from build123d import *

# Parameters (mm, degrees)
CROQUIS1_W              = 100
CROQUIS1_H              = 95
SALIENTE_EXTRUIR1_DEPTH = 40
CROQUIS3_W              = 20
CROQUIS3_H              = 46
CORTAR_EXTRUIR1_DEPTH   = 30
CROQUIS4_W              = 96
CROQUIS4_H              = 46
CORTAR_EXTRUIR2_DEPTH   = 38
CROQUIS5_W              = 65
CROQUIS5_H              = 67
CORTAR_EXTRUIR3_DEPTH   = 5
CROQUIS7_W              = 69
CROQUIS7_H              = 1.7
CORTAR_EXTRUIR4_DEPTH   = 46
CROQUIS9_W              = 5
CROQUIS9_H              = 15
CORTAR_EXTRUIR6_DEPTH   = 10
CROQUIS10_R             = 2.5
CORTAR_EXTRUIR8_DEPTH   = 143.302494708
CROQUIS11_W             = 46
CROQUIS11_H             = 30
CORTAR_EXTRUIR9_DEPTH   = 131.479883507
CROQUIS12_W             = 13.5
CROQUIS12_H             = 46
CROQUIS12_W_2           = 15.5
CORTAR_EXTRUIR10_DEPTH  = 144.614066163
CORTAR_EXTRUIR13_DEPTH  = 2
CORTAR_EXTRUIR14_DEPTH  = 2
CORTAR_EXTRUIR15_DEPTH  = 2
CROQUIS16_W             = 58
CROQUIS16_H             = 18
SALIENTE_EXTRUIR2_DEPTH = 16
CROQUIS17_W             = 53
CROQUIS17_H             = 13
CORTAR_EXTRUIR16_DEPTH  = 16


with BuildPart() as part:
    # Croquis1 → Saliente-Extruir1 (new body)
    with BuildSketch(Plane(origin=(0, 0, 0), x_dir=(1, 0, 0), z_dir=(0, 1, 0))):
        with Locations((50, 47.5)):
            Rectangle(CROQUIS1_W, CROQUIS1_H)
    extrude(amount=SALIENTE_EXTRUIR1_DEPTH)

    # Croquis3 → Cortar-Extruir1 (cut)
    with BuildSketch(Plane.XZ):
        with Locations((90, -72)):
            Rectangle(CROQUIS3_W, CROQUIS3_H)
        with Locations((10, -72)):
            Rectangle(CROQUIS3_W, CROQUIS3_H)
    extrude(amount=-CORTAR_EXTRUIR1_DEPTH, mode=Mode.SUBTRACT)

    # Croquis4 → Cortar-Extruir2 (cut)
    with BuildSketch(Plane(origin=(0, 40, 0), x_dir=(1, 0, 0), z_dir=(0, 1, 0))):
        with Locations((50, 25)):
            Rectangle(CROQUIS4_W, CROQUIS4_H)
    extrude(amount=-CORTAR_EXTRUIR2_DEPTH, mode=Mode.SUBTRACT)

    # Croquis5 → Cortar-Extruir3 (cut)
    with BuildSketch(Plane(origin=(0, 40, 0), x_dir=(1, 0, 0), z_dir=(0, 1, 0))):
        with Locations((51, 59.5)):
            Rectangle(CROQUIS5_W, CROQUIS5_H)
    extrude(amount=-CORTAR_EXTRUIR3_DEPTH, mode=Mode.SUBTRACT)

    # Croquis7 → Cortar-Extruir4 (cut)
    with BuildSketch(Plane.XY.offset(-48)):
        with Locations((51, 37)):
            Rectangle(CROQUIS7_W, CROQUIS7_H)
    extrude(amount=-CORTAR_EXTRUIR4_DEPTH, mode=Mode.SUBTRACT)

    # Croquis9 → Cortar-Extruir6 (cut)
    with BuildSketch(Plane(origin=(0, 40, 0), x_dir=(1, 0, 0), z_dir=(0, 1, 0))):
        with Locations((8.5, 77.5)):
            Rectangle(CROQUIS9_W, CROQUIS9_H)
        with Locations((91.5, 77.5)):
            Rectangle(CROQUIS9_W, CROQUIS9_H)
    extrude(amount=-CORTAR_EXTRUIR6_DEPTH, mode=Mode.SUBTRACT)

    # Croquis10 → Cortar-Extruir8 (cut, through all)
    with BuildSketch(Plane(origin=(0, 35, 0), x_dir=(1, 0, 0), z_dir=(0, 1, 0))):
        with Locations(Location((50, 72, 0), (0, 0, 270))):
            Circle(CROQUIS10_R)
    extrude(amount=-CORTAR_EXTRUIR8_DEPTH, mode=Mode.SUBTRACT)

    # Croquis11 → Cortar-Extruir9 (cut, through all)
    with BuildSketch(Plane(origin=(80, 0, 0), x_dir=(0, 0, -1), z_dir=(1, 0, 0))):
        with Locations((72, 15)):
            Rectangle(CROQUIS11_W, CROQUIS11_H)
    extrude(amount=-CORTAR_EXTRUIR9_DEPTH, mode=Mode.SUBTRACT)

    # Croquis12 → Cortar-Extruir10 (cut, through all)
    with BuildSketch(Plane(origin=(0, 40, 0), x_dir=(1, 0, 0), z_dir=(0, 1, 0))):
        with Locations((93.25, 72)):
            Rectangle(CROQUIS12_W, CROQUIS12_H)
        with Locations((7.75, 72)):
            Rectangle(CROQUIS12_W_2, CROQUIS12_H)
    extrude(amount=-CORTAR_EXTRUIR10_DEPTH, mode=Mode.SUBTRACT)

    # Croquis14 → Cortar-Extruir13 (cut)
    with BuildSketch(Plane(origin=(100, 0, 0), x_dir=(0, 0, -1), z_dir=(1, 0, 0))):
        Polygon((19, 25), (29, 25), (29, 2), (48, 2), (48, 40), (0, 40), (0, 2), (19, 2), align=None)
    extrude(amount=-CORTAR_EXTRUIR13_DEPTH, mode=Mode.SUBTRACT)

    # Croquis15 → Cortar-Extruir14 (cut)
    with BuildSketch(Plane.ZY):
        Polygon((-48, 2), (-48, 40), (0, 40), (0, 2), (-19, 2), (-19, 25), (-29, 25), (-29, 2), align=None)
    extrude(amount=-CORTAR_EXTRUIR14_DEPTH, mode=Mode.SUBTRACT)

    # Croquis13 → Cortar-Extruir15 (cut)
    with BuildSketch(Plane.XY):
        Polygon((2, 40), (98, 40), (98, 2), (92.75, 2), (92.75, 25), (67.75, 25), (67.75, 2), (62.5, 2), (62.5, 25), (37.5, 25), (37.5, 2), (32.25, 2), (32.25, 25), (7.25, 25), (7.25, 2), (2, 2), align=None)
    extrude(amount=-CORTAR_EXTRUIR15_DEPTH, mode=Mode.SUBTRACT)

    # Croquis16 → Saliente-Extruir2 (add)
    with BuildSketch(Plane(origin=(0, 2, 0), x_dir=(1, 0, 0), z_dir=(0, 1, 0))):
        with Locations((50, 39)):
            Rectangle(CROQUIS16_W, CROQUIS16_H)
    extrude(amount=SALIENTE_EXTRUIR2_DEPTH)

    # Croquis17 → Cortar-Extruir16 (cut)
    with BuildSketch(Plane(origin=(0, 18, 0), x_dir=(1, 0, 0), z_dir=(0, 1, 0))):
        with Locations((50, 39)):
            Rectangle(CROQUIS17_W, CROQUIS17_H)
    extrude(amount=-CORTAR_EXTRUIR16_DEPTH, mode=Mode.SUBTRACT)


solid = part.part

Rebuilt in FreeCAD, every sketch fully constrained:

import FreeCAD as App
import Part
import Sketcher
from FreeCAD import Vector


def add_polygon(sketch, points):
    """Adds a closed chain of lines whose ends are joined by coincident constraints."""
    first, n = sketch.GeometryCount, len(points)
    for a, b in zip(points, points[1:] + points[:1]):
        sketch.addGeometry(Part.LineSegment(App.Vector(*a, 0), App.Vector(*b, 0)), False)
    for i in range(n):
        sketch.addConstraint(Sketcher.Constraint("Coincident", first + i, 2, first + (i + 1) % n, 1))

doc = App.newDocument("Part")
body = doc.addObject("PartDesign::Body", "Body")

# Sketch on XZ plane
sketch1 = doc.addObject("Sketcher::SketchObject", "Sketch")
body.addObject(sketch1)
sketch1.AttachmentSupport = (doc.XZ_Plane, [""])
sketch1.MapMode = "FlatFace"
add_polygon(sketch1, [(0, -95), (0, 0), (100, 0), (100, -95)])  # lines 0-3
sketch1.addConstraint([
    Sketcher.Constraint("Vertical", 0),
    Sketcher.Constraint("Horizontal", 1),
    Sketcher.Constraint("Vertical", 2),
    Sketcher.Constraint("Horizontal", 3),
    Sketcher.Constraint("Coincident", 0, 2, -1, 1),
    Sketcher.Constraint("DistanceX", 1, 1, 1, 2, 100.0),
    Sketcher.Constraint("DistanceY", 0, 1, 0, 2, 95.0),
])
pad1 = doc.addObject("PartDesign::Pad", "Pad")
body.addObject(pad1)
pad1.Profile = sketch1
pad1.Length = 40
pad1.Reversed = True

# Sketch on XZ plane
sketch2 = doc.addObject("Sketcher::SketchObject", "Sketch001")
body.addObject(sketch2)
sketch2.AttachmentSupport = (doc.XZ_Plane, [""])
sketch2.MapMode = "FlatFace"
add_polygon(sketch2, [(80, -49), (80, -95), (100, -95), (100, -49)])  # lines 0-3
add_polygon(sketch2, [(0, -49), (0, -95), (20, -95), (20, -49)])  # lines 4-7
sketch2.addConstraint([
    Sketcher.Constraint("Vertical", 0),
    Sketcher.Constraint("Horizontal", 1),
    Sketcher.Constraint("Vertical", 2),
    Sketcher.Constraint("Horizontal", 3),
    Sketcher.Constraint("Vertical", 4),
    Sketcher.Constraint("Horizontal", 5),
    Sketcher.Constraint("Vertical", 6),
    Sketcher.Constraint("Horizontal", 7),
    Sketcher.Constraint("PointOnObject", 4, 2, -2),
    Sketcher.Constraint("Horizontal", 1, 2, 4, 2),
    Sketcher.Constraint("Horizontal", 3, 2, 6, 2),
    Sketcher.Constraint("Equal", 3, 5),
    Sketcher.Constraint("DistanceX", 1, 1, 1, 2, 20.0),
    Sketcher.Constraint("DistanceY", 0, 2, 0, 1, 46.0),
    Sketcher.Constraint("DistanceX", -1, 1, 0, 2, 80.0),
    Sketcher.Constraint("DistanceY", 0, 2, -1, 1, 95.0),
])
pocket1 = doc.addObject("PartDesign::Pocket", "Pocket")
body.addObject(pocket1)
pocket1.Profile = sketch2
pocket1.Length = 30

# Sketch on XZ plane
sketch3 = doc.addObject("Sketcher::SketchObject", "Sketch002")
body.addObject(sketch3)
sketch3.AttachmentSupport = (doc.XZ_Plane, [""])
sketch3.MapMode = "FlatFace"
sketch3.AttachmentOffset = App.Placement(Vector(0, 0, -40), App.Rotation())
add_polygon(sketch3, [(2, -48), (2, -2), (98, -2), (98, -48)])  # lines 0-3
sketch3.addConstraint([
    Sketcher.Constraint("Vertical", 0),
    Sketcher.Constraint("Horizontal", 1),
    Sketcher.Constraint("Vertical", 2),
    Sketcher.Constraint("Horizontal", 3),
    Sketcher.Constraint("DistanceX", 1, 1, 1, 2, 96.0),
    Sketcher.Constraint("DistanceY", 0, 1, 0, 2, 46.0),
    Sketcher.Constraint("DistanceX", -1, 1, 0, 2, 2.0),
    Sketcher.Constraint("DistanceY", 0, 2, -1, 1, 2.0),
])
pocket2 = doc.addObject("PartDesign::Pocket", "Pocket001")
body.addObject(pocket2)
pocket2.Profile = sketch3
pocket2.Length = 38
pocket2.Reversed = True

# Sketch on XZ plane
sketch4 = doc.addObject("Sketcher::SketchObject", "Sketch003")
body.addObject(sketch4)
sketch4.AttachmentSupport = (doc.XZ_Plane, [""])
sketch4.MapMode = "FlatFace"
sketch4.AttachmentOffset = App.Placement(Vector(0, 0, -40), App.Rotation())
add_polygon(sketch4, [(18.5, -93), (18.5, -26), (83.5, -26), (83.5, -93)])  # lines 0-3
sketch4.addConstraint([
    Sketcher.Constraint("Vertical", 0),
    Sketcher.Constraint("Horizontal", 1),
    Sketcher.Constraint("Vertical", 2),
    Sketcher.Constraint("Horizontal", 3),
    Sketcher.Constraint("DistanceX", 1, 1, 1, 2, 65.0),
    Sketcher.Constraint("DistanceY", 0, 1, 0, 2, 67.0),
    Sketcher.Constraint("DistanceY", 0, 2, -1, 1, 26.0),
    Sketcher.Constraint("DistanceX", -1, 1, 0, 2, 18.5),
])
pocket3 = doc.addObject("PartDesign::Pocket", "Pocket002")
body.addObject(pocket3)
pocket3.Profile = sketch4
pocket3.Length = 5
pocket3.Reversed = True

# Sketch on XY plane
sketch5 = doc.addObject("Sketcher::SketchObject", "Sketch004")
body.addObject(sketch5)
sketch5.AttachmentSupport = (doc.XY_Plane, [""])
sketch5.MapMode = "FlatFace"
sketch5.AttachmentOffset = App.Placement(Vector(0, 0, -48), App.Rotation())
add_polygon(sketch5, [(16.5, 37.85), (16.5, 36.15), (85.5, 36.15), (85.5, 37.85)])  # lines 0-3
sketch5.addConstraint([
    Sketcher.Constraint("Vertical", 0),
    Sketcher.Constraint("Horizontal", 1),
    Sketcher.Constraint("Vertical", 2),
    Sketcher.Constraint("Horizontal", 3),
    Sketcher.Constraint("DistanceX", 1, 1, 1, 2, 69.0),
    Sketcher.Constraint("DistanceY", 0, 2, 0, 1, 1.7),
    Sketcher.Constraint("DistanceX", -1, 1, 0, 2, 16.5),
    Sketcher.Constraint("DistanceY", -1, 1, 0, 2, 36.15),
])
pocket4 = doc.addObject("PartDesign::Pocket", "Pocket003")
body.addObject(pocket4)
pocket4.Profile = sketch5
pocket4.Length = 46

# Sketch on XZ plane
sketch6 = doc.addObject("Sketcher::SketchObject", "Sketch005")
body.addObject(sketch6)
sketch6.AttachmentSupport = (doc.XZ_Plane, [""])
sketch6.MapMode = "FlatFace"
sketch6.AttachmentOffset = App.Placement(Vector(0, 0, -40), App.Rotation())
add_polygon(sketch6, [(6, -85), (6, -70), (11, -70), (11, -85)])  # lines 0-3
add_polygon(sketch6, [(89, -85), (89, -70), (94, -70), (94, -85)])  # lines 4-7
sketch6.addConstraint([
    Sketcher.Constraint("Vertical", 0),
    Sketcher.Constraint("Horizontal", 1),
    Sketcher.Constraint("Vertical", 2),
    Sketcher.Constraint("Horizontal", 3),
    Sketcher.Constraint("Vertical", 4),
    Sketcher.Constraint("Horizontal", 5),
    Sketcher.Constraint("Vertical", 6),
    Sketcher.Constraint("Horizontal", 7),
    Sketcher.Constraint("Horizontal", 1, 2, 4, 2),
    Sketcher.Constraint("Horizontal", 3, 2, 6, 2),
    Sketcher.Constraint("Equal", 3, 5),
    Sketcher.Constraint("DistanceX", 1, 1, 1, 2, 5.0),
    Sketcher.Constraint("DistanceY", 0, 1, 0, 2, 15.0),
    Sketcher.Constraint("DistanceX", -1, 1, 0, 2, 6.0),
    Sketcher.Constraint("DistanceY", 0, 2, -1, 1, 70.0),
    Sketcher.Constraint("DistanceX", -1, 1, 4, 2, 89.0),
])
pocket5 = doc.addObject("PartDesign::Pocket", "Pocket004")
body.addObject(pocket5)
pocket5.Profile = sketch6
pocket5.Length = 10
pocket5.Reversed = True

# Sketch on XZ plane
sketch7 = doc.addObject("Sketcher::SketchObject", "Sketch006")
body.addObject(sketch7)
sketch7.AttachmentSupport = (doc.XZ_Plane, [""])
sketch7.MapMode = "FlatFace"
sketch7.AttachmentOffset = App.Placement(Vector(0, 0, -35), App.Rotation())
sketch7.addGeometry(Part.Circle(Vector(50, -72, 0), Vector(0, 0, 1), 2.5), False)
sketch7.addConstraint([
    Sketcher.Constraint("Diameter", 0, 5.0),
    Sketcher.Constraint("DistanceX", -1, 1, 0, 3, 50.0),
    Sketcher.Constraint("DistanceY", 0, 3, -1, 1, 72.0),
])
pocket6 = doc.addObject("PartDesign::Pocket", "Pocket005")
body.addObject(pocket6)
pocket6.Profile = sketch7
pocket6.Type = "ThroughAll"
pocket6.Reversed = True

# Sketch on YZ plane
sketch8 = doc.addObject("Sketcher::SketchObject", "Sketch007")
body.addObject(sketch8)
sketch8.AttachmentSupport = (doc.YZ_Plane, [""])
sketch8.MapMode = "FlatFace"
sketch8.AttachmentOffset = App.Placement(Vector(0, 0, 80), App.Rotation())
add_polygon(sketch8, [(30, -49), (0, -49), (0, -95), (30, -95)])  # lines 0-3
sketch8.addConstraint([
    Sketcher.Constraint("Horizontal", 0),
    Sketcher.Constraint("Vertical", 1),
    Sketcher.Constraint("Horizontal", 2),
    Sketcher.Constraint("Vertical", 3),
    Sketcher.Constraint("PointOnObject", 0, 2, -2),
    Sketcher.Constraint("DistanceX", 0, 2, 0, 1, 30.0),
    Sketcher.Constraint("DistanceY", 1, 2, 1, 1, 46.0),
    Sketcher.Constraint("DistanceY", 0, 2, -1, 1, 49.0),
])
pocket7 = doc.addObject("PartDesign::Pocket", "Pocket006")
body.addObject(pocket7)
pocket7.Profile = sketch8
pocket7.Type = "ThroughAll"

# Sketch on XZ plane
sketch9 = doc.addObject("Sketcher::SketchObject", "Sketch008")
body.addObject(sketch9)
sketch9.AttachmentSupport = (doc.XZ_Plane, [""])
sketch9.MapMode = "FlatFace"
sketch9.AttachmentOffset = App.Placement(Vector(0, 0, -40), App.Rotation())
add_polygon(sketch9, [(86.5, -95), (86.5, -49), (100, -49), (100, -95)])  # lines 0-3
add_polygon(sketch9, [(0, -95), (0, -49), (15.5, -49), (15.5, -95)])  # lines 4-7
sketch9.addConstraint([
    Sketcher.Constraint("Vertical", 0),
    Sketcher.Constraint("Horizontal", 1),
    Sketcher.Constraint("Vertical", 2),
    Sketcher.Constraint("Horizontal", 3),
    Sketcher.Constraint("Vertical", 4),
    Sketcher.Constraint("Horizontal", 5),
    Sketcher.Constraint("Vertical", 6),
    Sketcher.Constraint("Horizontal", 7),
    Sketcher.Constraint("PointOnObject", 4, 2, -2),
    Sketcher.Constraint("Horizontal", 1, 2, 4, 2),
    Sketcher.Constraint("Horizontal", 3, 2, 6, 2),
    Sketcher.Constraint("DistanceY", 0, 1, 0, 2, 46.0),
    Sketcher.Constraint("DistanceX", 1, 1, 1, 2, 13.5),
    Sketcher.Constraint("DistanceX", 5, 1, 5, 2, 15.5),
    Sketcher.Constraint("DistanceY", 0, 2, -1, 1, 49.0),
    Sketcher.Constraint("DistanceX", -1, 1, 1, 2, 100.0),
])
pocket8 = doc.addObject("PartDesign::Pocket", "Pocket007")
body.addObject(pocket8)
pocket8.Profile = sketch9
pocket8.Type = "ThroughAll"
pocket8.Reversed = True

# Sketch on YZ plane
sketch10 = doc.addObject("Sketcher::SketchObject", "Sketch009")
body.addObject(sketch10)
sketch10.AttachmentSupport = (doc.YZ_Plane, [""])
sketch10.MapMode = "FlatFace"
sketch10.AttachmentOffset = App.Placement(Vector(0, 0, 100), App.Rotation())
add_polygon(sketch10, [(25, -19), (25, -29), (2, -29), (2, -48), (40, -48), (40, 0), (2, 0), (2, -19)])  # lines 0-7
sketch10.addConstraint([
    Sketcher.Constraint("Vertical", 0),
    Sketcher.Constraint("Horizontal", 1),
    Sketcher.Constraint("Vertical", 2),
    Sketcher.Constraint("Horizontal", 3),
    Sketcher.Constraint("Vertical", 4),
    Sketcher.Constraint("Horizontal", 5),
    Sketcher.Constraint("Vertical", 6),
    Sketcher.Constraint("Horizontal", 7),
    Sketcher.Constraint("PointOnObject", 4, 2, -1),
    Sketcher.Constraint("Vertical", 2, 2, 5, 2),
    Sketcher.Constraint("Equal", 2, 6),
    Sketcher.Constraint("DistanceX", 1, 2, 1, 1, 23.0),
    Sketcher.Constraint("DistanceX", 3, 1, 3, 2, 38.0),
    Sketcher.Constraint("DistanceY", 0, 2, 0, 1, 10.0),
    Sketcher.Constraint("DistanceY", 2, 2, 2, 1, 19.0),
    Sketcher.Constraint("DistanceX", -1, 1, 0, 2, 25.0),
])
pocket9 = doc.addObject("PartDesign::Pocket", "Pocket008")
body.addObject(pocket9)
pocket9.Profile = sketch10
pocket9.Length = 2

# Sketch on YZ plane
sketch11 = doc.addObject("Sketcher::SketchObject", "Sketch010")
body.addObject(sketch11)
sketch11.AttachmentSupport = (doc.YZ_Plane, [""])
sketch11.MapMode = "FlatFace"
add_polygon(sketch11, [(40, -48), (2, -48), (2, -29), (25, -29), (25, -19), (2, -19), (2, 0), (40, 0)])  # lines 0-7
sketch11.addConstraint([
    Sketcher.Constraint("Horizontal", 0),
    Sketcher.Constraint("Vertical", 1),
    Sketcher.Constraint("Horizontal", 2),
    Sketcher.Constraint("Vertical", 3),
    Sketcher.Constraint("Horizontal", 4),
    Sketcher.Constraint("Vertical", 5),
    Sketcher.Constraint("Horizontal", 6),
    Sketcher.Constraint("Vertical", 7),
    Sketcher.Constraint("PointOnObject", 5, 2, -1),
    Sketcher.Constraint("Vertical", 1, 2, 4, 2),
    Sketcher.Constraint("Equal", 1, 5),
    Sketcher.Constraint("DistanceX", 0, 2, 0, 1, 38.0),
    Sketcher.Constraint("DistanceX", 2, 1, 2, 2, 23.0),
    Sketcher.Constraint("DistanceY", 1, 1, 1, 2, 19.0),
    Sketcher.Constraint("DistanceY", 3, 1, 3, 2, 10.0),
    Sketcher.Constraint("DistanceX", -1, 1, 0, 2, 2.0),
])
pocket10 = doc.addObject("PartDesign::Pocket", "Pocket009")
body.addObject(pocket10)
pocket10.Profile = sketch11
pocket10.Length = 2
pocket10.Reversed = True

# Sketch on XY plane
sketch12 = doc.addObject("Sketcher::SketchObject", "Sketch011")
body.addObject(sketch12)
sketch12.AttachmentSupport = (doc.XY_Plane, [""])
sketch12.MapMode = "FlatFace"
add_polygon(sketch12, [(98, 40), (2, 40), (2, 2), (7.25, 2), (7.25, 25), (32.25, 25), (32.25, 2), (37.5, 2), (37.5, 25), (62.5, 25), (62.5, 2), (67.75, 2), (67.75, 25), (92.75, 25), (92.75, 2), (98, 2)])  # lines 0-15
sketch12.addConstraint([
    Sketcher.Constraint("Horizontal", 0),
    Sketcher.Constraint("Vertical", 1),
    Sketcher.Constraint("Horizontal", 2),
    Sketcher.Constraint("Vertical", 3),
    Sketcher.Constraint("Horizontal", 4),
    Sketcher.Constraint("Vertical", 5),
    Sketcher.Constraint("Horizontal", 6),
    Sketcher.Constraint("Vertical", 7),
    Sketcher.Constraint("Horizontal", 8),
    Sketcher.Constraint("Vertical", 9),
    Sketcher.Constraint("Horizontal", 10),
    Sketcher.Constraint("Vertical", 11),
    Sketcher.Constraint("Horizontal", 12),
    Sketcher.Constraint("Vertical", 13),
    Sketcher.Constraint("Horizontal", 14),
    Sketcher.Constraint("Vertical", 15),
    Sketcher.Constraint("Horizontal", 2, 2, 5, 2),
    Sketcher.Constraint("Horizontal", 4, 2, 7, 2),
    Sketcher.Constraint("Horizontal", 6, 2, 9, 2),
    Sketcher.Constraint("Horizontal", 8, 2, 11, 2),
    Sketcher.Constraint("Horizontal", 10, 2, 13, 2),
    Sketcher.Constraint("Equal", 2, 6),
    Sketcher.Constraint("Equal", 4, 8),
    Sketcher.Constraint("Equal", 6, 10),
    Sketcher.Constraint("Equal", 8, 12),
    Sketcher.Constraint("Equal", 10, 14),
    Sketcher.Constraint("DistanceX", 0, 2, 0, 1, 96.0),
    Sketcher.Constraint("DistanceX", 4, 1, 4, 2, 25.0),
    Sketcher.Constraint("DistanceY", 1, 2, 1, 1, 38.0),
    Sketcher.Constraint("DistanceY", 3, 1, 3, 2, 23.0),
    Sketcher.Constraint("DistanceX", -1, 1, 0, 2, 2.0),
    Sketcher.Constraint("DistanceY", -1, 1, 0, 2, 40.0),
])
pocket11 = doc.addObject("PartDesign::Pocket", "Pocket010")
body.addObject(pocket11)
pocket11.Profile = sketch12
pocket11.Length = 2

# Sketch on XZ plane
sketch13 = doc.addObject("Sketcher::SketchObject", "Sketch012")
body.addObject(sketch13)
sketch13.AttachmentSupport = (doc.XZ_Plane, [""])
sketch13.MapMode = "FlatFace"
sketch13.AttachmentOffset = App.Placement(Vector(0, 0, -2), App.Rotation())
add_polygon(sketch13, [(21, -48), (21, -30), (79, -30), (79, -48)])  # lines 0-3
sketch13.addConstraint([
    Sketcher.Constraint("Vertical", 0),
    Sketcher.Constraint("Horizontal", 1),
    Sketcher.Constraint("Vertical", 2),
    Sketcher.Constraint("Horizontal", 3),
    Sketcher.Constraint("DistanceX", 1, 1, 1, 2, 58.0),
    Sketcher.Constraint("DistanceY", 0, 1, 0, 2, 18.0),
    Sketcher.Constraint("DistanceX", -1, 1, 0, 2, 21.0),
    Sketcher.Constraint("DistanceY", 0, 2, -1, 1, 30.0),
])
pad2 = doc.addObject("PartDesign::Pad", "Pad001")
body.addObject(pad2)
pad2.Profile = sketch13
pad2.Length = 16
pad2.Reversed = True

# Sketch on XZ plane
sketch14 = doc.addObject("Sketcher::SketchObject", "Sketch013")
body.addObject(sketch14)
sketch14.AttachmentSupport = (doc.XZ_Plane, [""])
sketch14.MapMode = "FlatFace"
sketch14.AttachmentOffset = App.Placement(Vector(0, 0, -18), App.Rotation())
add_polygon(sketch14, [(23.5, -45.5), (23.5, -32.5), (76.5, -32.5), (76.5, -45.5)])  # lines 0-3
sketch14.addConstraint([
    Sketcher.Constraint("Vertical", 0),
    Sketcher.Constraint("Horizontal", 1),
    Sketcher.Constraint("Vertical", 2),
    Sketcher.Constraint("Horizontal", 3),
    Sketcher.Constraint("DistanceX", 1, 1, 1, 2, 53.0),
    Sketcher.Constraint("DistanceY", 0, 1, 0, 2, 13.0),
    Sketcher.Constraint("DistanceX", -1, 1, 0, 2, 23.5),
    Sketcher.Constraint("DistanceY", 0, 2, -1, 1, 32.5),
])
pocket12 = doc.addObject("PartDesign::Pocket", "Pocket011")
body.addObject(pocket12)
pocket12.Profile = sketch14
pocket12.Length = 16
pocket12.Reversed = True

doc.recompute()
